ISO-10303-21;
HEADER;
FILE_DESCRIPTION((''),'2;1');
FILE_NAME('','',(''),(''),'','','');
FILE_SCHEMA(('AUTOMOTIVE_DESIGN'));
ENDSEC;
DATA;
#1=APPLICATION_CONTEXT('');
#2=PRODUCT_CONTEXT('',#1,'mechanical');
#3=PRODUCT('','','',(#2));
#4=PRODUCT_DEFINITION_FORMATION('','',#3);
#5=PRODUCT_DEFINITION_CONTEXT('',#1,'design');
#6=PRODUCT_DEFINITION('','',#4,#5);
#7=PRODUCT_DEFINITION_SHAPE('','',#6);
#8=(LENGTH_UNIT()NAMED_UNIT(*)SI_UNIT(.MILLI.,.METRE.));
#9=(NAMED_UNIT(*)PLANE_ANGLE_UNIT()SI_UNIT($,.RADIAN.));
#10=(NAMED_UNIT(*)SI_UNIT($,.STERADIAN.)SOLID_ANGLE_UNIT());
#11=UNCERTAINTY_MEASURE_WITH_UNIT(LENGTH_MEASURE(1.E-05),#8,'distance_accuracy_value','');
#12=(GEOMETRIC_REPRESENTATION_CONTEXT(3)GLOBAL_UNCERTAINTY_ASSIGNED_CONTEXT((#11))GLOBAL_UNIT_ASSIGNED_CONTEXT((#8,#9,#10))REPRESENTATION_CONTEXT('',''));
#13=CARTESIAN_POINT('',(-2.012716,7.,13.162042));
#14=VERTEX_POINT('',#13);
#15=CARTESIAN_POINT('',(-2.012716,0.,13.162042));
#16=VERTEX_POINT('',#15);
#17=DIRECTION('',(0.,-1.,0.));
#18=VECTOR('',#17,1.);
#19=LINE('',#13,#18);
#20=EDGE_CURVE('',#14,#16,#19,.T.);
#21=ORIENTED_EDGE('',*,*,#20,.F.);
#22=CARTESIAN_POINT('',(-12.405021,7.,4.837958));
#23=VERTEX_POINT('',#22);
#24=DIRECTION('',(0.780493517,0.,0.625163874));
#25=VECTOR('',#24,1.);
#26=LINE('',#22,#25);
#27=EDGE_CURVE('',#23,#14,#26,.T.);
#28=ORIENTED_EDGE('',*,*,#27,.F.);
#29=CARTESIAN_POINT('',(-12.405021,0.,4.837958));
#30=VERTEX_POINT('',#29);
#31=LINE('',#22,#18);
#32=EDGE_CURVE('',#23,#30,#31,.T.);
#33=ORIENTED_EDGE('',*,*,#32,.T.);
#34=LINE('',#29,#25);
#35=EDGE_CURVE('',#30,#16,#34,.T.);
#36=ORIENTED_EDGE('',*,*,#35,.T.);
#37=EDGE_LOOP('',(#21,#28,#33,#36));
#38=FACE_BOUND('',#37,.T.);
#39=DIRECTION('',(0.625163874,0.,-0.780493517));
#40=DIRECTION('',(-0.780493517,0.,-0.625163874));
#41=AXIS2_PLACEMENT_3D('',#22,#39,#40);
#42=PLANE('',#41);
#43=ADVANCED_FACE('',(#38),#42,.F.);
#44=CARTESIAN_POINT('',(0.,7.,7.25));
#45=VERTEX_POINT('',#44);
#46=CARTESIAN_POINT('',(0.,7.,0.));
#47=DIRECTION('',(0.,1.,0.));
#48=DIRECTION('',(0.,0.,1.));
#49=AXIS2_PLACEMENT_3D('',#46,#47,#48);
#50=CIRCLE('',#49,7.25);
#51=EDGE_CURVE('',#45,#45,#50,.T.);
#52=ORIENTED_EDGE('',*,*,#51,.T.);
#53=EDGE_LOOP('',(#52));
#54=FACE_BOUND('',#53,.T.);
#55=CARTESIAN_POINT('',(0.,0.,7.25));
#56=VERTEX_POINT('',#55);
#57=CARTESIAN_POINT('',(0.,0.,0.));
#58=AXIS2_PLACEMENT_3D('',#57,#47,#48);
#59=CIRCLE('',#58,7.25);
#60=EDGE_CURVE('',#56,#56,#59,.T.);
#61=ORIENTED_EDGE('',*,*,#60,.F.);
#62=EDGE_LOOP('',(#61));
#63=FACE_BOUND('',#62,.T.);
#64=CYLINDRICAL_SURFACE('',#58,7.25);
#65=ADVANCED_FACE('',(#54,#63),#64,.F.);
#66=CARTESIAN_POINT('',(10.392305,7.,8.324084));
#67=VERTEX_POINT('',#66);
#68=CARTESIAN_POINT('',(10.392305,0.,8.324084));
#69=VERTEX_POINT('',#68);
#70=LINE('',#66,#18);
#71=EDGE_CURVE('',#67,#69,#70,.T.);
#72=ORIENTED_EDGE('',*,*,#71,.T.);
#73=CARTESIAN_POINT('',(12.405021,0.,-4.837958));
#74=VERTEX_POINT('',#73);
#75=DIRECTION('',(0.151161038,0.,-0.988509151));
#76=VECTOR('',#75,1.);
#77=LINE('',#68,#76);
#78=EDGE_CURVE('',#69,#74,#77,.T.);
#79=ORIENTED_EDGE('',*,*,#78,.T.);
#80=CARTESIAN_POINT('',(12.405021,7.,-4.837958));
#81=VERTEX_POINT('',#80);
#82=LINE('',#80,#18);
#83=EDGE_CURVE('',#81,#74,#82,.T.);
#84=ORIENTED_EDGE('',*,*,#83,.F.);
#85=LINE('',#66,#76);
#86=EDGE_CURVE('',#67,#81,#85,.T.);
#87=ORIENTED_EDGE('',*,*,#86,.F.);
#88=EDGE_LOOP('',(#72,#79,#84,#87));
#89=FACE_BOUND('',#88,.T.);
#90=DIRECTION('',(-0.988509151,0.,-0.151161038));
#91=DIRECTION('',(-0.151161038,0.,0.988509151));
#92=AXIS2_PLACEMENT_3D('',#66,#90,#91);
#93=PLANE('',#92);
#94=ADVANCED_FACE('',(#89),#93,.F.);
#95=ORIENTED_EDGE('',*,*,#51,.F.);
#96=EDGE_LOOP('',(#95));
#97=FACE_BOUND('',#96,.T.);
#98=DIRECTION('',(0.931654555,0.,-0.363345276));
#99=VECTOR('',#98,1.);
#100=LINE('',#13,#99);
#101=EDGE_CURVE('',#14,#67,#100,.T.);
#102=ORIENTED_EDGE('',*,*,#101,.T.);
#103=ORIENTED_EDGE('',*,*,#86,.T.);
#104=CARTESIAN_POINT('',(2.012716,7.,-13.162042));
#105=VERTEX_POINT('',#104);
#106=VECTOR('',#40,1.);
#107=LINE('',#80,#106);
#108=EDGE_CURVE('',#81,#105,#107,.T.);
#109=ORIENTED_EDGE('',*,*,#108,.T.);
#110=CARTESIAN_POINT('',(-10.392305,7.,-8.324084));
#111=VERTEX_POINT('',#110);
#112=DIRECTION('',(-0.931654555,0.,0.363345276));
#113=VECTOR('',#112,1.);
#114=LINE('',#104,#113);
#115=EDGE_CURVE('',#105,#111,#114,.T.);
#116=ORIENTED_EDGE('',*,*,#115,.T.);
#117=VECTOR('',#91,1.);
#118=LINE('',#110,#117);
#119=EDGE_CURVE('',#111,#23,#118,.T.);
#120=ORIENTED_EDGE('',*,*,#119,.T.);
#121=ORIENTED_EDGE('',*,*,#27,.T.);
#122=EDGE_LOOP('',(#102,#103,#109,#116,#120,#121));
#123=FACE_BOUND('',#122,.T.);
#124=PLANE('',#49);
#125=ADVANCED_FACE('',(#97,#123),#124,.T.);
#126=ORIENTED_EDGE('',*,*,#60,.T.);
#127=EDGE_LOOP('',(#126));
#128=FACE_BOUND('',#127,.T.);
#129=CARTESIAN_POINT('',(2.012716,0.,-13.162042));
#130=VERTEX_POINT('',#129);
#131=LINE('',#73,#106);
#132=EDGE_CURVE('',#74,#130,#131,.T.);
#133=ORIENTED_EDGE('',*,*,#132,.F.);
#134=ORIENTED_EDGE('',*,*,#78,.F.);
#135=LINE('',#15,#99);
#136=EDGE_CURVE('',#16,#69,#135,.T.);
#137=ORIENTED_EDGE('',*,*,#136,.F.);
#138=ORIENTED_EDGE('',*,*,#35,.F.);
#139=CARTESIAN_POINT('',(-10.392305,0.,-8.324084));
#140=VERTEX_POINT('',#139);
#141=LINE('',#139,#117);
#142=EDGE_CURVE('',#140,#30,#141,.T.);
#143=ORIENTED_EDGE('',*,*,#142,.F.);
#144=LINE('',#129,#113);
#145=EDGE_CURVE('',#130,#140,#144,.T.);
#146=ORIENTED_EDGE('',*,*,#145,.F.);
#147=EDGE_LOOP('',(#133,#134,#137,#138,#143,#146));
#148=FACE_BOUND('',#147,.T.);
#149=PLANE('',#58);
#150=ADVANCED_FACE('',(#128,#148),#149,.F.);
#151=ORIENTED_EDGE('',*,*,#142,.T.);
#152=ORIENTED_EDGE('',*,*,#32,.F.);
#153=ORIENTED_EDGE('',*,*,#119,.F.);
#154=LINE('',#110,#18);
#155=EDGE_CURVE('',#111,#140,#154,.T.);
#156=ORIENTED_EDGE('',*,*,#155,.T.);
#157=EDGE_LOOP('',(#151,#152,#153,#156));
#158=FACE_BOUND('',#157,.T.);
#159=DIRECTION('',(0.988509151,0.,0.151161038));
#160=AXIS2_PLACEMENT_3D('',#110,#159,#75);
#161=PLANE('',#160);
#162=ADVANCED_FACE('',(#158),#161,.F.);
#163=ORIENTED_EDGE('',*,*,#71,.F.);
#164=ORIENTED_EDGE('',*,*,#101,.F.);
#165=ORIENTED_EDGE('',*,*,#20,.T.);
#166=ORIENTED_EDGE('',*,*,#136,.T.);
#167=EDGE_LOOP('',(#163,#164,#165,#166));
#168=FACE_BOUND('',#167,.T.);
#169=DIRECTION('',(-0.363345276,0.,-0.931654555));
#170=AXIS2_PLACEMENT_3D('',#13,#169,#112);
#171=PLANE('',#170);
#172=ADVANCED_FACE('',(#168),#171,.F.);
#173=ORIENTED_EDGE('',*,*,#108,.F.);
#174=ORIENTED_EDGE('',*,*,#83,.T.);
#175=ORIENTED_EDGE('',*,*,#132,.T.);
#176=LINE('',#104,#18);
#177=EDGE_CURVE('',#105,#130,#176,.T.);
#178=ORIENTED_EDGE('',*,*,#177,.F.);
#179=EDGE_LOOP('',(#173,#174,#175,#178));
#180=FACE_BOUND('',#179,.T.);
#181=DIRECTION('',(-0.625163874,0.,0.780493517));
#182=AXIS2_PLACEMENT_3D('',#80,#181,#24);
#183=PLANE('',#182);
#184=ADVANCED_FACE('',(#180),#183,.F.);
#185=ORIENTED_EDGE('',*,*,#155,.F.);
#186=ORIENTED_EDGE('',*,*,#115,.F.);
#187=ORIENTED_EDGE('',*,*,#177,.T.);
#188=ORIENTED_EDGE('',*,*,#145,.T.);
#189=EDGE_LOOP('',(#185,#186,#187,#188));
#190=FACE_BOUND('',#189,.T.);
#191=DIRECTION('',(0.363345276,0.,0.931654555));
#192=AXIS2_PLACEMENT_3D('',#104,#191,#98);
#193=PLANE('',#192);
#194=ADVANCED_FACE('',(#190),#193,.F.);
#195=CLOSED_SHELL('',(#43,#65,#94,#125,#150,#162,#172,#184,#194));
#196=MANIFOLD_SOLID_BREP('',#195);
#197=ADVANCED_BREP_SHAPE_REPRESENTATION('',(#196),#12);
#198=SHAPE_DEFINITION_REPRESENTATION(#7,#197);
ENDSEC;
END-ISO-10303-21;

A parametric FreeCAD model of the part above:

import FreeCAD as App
import Part
import Sketcher

V = App.Vector

doc = App.newDocument("Part")
body = doc.addObject("PartDesign::Body", "Body")

# Sketch on XZ plane
sketch1 = body.newObject("Sketcher::SketchObject", "Sketch")
sketch1.AttachmentSupport = (doc.getObject("XZ_Plane"), [""])
sketch1.MapMode = "FlatFace"
sketch1.addGeometry([
    Part.LineSegment(V(-12.405021, 4.837958, 0), V(-2.012716, 13.162042, 0)),  # 0
    Part.LineSegment(V(-2.012716, 13.162042, 0), V(10.392305, 8.324084, 0)),  # 1
    Part.LineSegment(V(10.392305, 8.324084, 0), V(12.405021, -4.837958, 0)),  # 2
    Part.LineSegment(V(12.405021, -4.837958, 0), V(2.012716, -13.162042, 0)),  # 3
    Part.LineSegment(V(2.012716, -13.162042, 0), V(-10.392305, -8.324084, 0)),  # 4
    Part.LineSegment(V(-10.392305, -8.324084, 0), V(-12.405021, 4.837958, 0)),  # 5
], False)
sketch1.addConstraint([
    Sketcher.Constraint("Coincident", 0, 2, 1, 1),
    Sketcher.Constraint("Coincident", 1, 2, 2, 1),
    Sketcher.Constraint("Coincident", 2, 2, 3, 1),
    Sketcher.Constraint("Coincident", 3, 2, 4, 1),
    Sketcher.Constraint("Coincident", 4, 2, 5, 1),
    Sketcher.Constraint("Coincident", 5, 2, 0, 1),
    Sketcher.Constraint("Symmetric", 0, 2, 3, 2, -1, 1),
    Sketcher.Constraint("Symmetric", 1, 2, 4, 2, -1, 1),
    Sketcher.Constraint("Symmetric", 2, 2, 5, 2, -1, 1),
    Sketcher.Constraint("Equal", 0, 1),
    Sketcher.Constraint("Equal", 1, 2),
    Sketcher.Constraint("DistanceY", 2, 2, 0, 2, 18.0),
    Sketcher.Constraint("DistanceY", -1, 1, 0, 2, 13.162042),
    Sketcher.Constraint("DistanceX", -1, 1, 2, 2, 12.405021),
    Sketcher.Constraint("DistanceX", 0, 2, 1, 2, 12.405021),
])
pad1 = body.newObject("PartDesign::Pad", "Pad")
pad1.Profile = sketch1
pad1.Length = 7
pad1.Reversed = True

# Sketch on XZ plane
sketch2 = body.newObject("Sketcher::SketchObject", "Sketch001")
sketch2.AttachmentSupport = (doc.getObject("XZ_Plane"), [""])
sketch2.MapMode = "FlatFace"
sketch2.AttachmentOffset = App.Placement(V(0, 0, -7), App.Rotation())
sketch2.addGeometry(Part.Circle(V(0, 0, 0), V(0, 0, 1), 7.25), False)
sketch2.addConstraint([
    Sketcher.Constraint("Coincident", 0, 3, -1, 1),
    Sketcher.Constraint("Diameter", 0, 14.5),
])
pocket1 = body.newObject("PartDesign::Pocket", "Pocket")
pocket1.Profile = sketch2
pocket1.Length = 7
pocket1.Reversed = True

doc.recompute()
